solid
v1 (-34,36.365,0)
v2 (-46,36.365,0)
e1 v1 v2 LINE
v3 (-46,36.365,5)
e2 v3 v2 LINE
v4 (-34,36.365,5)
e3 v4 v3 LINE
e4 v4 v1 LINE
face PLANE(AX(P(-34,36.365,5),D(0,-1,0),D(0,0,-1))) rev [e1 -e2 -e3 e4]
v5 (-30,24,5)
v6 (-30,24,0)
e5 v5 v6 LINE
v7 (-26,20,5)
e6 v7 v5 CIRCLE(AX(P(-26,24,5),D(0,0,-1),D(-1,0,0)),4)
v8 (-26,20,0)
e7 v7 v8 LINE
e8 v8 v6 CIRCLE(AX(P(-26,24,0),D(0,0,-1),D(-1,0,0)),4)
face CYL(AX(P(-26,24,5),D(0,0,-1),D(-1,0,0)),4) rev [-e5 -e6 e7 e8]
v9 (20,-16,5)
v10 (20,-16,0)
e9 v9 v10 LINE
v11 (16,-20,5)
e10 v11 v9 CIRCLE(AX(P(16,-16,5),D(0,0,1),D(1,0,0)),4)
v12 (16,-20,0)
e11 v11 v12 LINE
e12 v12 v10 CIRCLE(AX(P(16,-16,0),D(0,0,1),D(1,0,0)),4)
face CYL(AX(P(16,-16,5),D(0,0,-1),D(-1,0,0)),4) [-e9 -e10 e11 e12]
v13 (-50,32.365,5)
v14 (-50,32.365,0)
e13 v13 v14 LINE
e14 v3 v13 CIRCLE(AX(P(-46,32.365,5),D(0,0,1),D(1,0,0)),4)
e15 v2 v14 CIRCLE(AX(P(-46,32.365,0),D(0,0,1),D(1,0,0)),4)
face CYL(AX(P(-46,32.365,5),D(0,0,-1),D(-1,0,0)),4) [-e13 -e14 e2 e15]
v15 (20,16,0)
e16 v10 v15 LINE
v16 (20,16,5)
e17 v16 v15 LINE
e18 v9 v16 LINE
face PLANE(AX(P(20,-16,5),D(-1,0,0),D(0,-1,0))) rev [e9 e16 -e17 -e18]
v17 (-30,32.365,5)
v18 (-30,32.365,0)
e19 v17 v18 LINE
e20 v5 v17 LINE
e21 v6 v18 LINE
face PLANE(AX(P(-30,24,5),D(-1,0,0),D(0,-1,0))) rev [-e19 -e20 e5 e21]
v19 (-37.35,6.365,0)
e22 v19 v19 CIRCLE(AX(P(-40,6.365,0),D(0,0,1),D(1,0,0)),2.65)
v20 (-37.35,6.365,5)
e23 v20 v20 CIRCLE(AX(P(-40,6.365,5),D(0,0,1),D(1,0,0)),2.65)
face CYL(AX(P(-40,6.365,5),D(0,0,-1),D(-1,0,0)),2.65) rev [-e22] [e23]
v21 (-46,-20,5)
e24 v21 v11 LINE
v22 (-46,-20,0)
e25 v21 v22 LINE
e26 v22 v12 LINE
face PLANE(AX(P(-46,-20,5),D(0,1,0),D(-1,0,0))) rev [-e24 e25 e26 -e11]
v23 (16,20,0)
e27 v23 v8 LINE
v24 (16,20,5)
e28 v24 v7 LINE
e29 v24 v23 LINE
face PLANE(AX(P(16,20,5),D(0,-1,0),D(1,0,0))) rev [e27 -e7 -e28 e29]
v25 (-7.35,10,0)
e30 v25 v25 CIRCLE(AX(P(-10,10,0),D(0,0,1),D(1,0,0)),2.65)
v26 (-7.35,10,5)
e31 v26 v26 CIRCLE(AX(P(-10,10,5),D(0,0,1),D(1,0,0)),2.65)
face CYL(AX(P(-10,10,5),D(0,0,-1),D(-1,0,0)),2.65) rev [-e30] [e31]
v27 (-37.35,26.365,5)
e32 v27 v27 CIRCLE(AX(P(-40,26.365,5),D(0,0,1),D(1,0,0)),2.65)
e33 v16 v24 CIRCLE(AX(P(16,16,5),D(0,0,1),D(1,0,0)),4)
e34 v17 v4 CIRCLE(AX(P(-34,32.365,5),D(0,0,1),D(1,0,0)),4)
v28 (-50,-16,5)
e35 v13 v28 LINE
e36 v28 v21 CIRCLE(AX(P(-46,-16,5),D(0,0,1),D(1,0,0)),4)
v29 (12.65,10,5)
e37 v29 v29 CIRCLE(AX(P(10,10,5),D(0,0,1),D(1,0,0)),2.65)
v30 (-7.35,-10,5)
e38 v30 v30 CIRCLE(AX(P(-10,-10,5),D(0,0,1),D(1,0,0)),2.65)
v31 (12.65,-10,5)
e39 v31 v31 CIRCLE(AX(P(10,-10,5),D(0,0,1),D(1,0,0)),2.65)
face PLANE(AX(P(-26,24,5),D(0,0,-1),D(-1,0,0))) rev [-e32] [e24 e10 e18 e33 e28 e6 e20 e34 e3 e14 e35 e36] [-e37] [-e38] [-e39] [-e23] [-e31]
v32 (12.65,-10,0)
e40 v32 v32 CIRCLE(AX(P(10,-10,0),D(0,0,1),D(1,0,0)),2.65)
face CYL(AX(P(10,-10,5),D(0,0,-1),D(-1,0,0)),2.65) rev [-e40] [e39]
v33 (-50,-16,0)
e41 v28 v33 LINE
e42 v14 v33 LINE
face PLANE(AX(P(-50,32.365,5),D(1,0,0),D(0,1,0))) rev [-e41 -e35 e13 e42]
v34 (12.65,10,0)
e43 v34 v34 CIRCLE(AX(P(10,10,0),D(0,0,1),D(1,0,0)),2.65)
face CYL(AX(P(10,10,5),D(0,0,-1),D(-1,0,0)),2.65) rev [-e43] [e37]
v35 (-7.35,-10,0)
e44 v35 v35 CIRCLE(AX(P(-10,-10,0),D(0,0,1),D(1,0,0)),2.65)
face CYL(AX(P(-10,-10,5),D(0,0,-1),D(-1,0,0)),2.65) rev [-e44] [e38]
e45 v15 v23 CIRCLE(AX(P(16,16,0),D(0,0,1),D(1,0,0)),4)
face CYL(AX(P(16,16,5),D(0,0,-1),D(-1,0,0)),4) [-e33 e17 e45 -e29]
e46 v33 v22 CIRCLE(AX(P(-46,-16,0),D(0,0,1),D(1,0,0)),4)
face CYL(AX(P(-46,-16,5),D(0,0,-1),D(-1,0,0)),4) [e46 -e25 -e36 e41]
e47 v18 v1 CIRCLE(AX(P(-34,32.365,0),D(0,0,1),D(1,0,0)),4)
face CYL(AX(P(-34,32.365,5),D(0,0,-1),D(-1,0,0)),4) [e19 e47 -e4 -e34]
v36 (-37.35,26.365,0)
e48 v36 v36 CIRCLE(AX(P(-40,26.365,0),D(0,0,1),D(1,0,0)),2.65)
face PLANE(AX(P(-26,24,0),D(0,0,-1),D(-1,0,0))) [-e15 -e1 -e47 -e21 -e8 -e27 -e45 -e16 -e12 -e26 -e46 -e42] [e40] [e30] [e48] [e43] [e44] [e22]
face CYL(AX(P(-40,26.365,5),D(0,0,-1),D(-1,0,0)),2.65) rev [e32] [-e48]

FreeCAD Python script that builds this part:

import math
import FreeCAD as App
import Part
import Sketcher
from FreeCAD import Vector

doc = App.newDocument("Part")
params = doc.addObject("Spreadsheet::Sheet", "Params")
for row, (alias, value) in enumerate([
    ("sketch1_radius", "4 mm"),
    ("sketch1_diameter", "5.3 mm"),
    ("sketch1_width", "62 mm"),
    ("sketch1_width2", "42 mm"),
    ("sketch1_height", "32 mm"),
    ("pad1_length", "5 mm"),
], start=1):
    params.set(f"A{row}", alias)
    params.set(f"B{row}", "=" + value)
    params.setAlias(f"B{row}", alias)

body = doc.addObject("PartDesign::Body", "Body")

# Sketch on XY plane
sketch1 = body.newObject("Sketcher::SketchObject", "Sketch")
sketch1.AttachmentSupport = (doc.getObject("XY_Plane"), [""])
sketch1.MapMode = "FlatFace"
sketch1.addGeometry(Part.LineSegment(Vector(-46, -20, 0), Vector(16, -20, 0)), False)
sketch1.addGeometry(Part.ArcOfCircle(Part.Circle(Vector(16, -16, 0), Vector(0, 0, 1), 4), math.radians(-90), math.radians(0)), False)
sketch1.addGeometry(Part.LineSegment(Vector(20, -16, 0), Vector(20, 16, 0)), False)
sketch1.addGeometry(Part.ArcOfCircle(Part.Circle(Vector(16, 16, 0), Vector(0, 0, 1), 4), math.radians(0), math.radians(90)), False)
sketch1.addGeometry(Part.LineSegment(Vector(16, 20, 0), Vector(-26, 20, 0)), False)
sketch1.addGeometry(Part.ArcOfCircle(Part.Circle(Vector(-26, 24, 0), Vector(0, 0, 1), 4), math.radians(180), math.radians(270)), False)
sketch1.addGeometry(Part.LineSegment(Vector(-30, 24, 0), Vector(-30, 32.4, 0)), False)
sketch1.addGeometry(Part.ArcOfCircle(Part.Circle(Vector(-34, 32.4, 0), Vector(0, 0, 1), 4), math.radians(0), math.radians(90)), False)
sketch1.addGeometry(Part.LineSegment(Vector(-34, 36.4, 0), Vector(-46, 36.4, 0)), False)
sketch1.addGeometry(Part.ArcOfCircle(Part.Circle(Vector(-46, 32.4, 0), Vector(0, 0, 1), 4), math.radians(90), math.radians(180)), False)
sketch1.addGeometry(Part.LineSegment(Vector(-50, 32.4, 0), Vector(-50, -16, 0)), False)
sketch1.addGeometry(Part.ArcOfCircle(Part.Circle(Vector(-46, -16, 0), Vector(0, 0, 1), 4), math.radians(180), math.radians(270)), False)
sketch1.addGeometry(Part.Circle(Vector(-40, 6.4, 0), Vector(0, 0, 1), 2.6), False)
sketch1.addGeometry(Part.Circle(Vector(-10, -10, 0), Vector(0, 0, 1), 2.6), False)
sketch1.addGeometry(Part.Circle(Vector(10, -10, 0), Vector(0, 0, 1), 2.6), False)
sketch1.addGeometry(Part.Circle(Vector(-40, 26.4, 0), Vector(0, 0, 1), 2.6), False)
sketch1.addGeometry(Part.Circle(Vector(-10, 10, 0), Vector(0, 0, 1), 2.6), False)
sketch1.addGeometry(Part.Circle(Vector(10, 10, 0), Vector(0, 0, 1), 2.6), False)
sketch1.addConstraint(Sketcher.Constraint("Tangent", 0, 2, 1, 1))
sketch1.addConstraint(Sketcher.Constraint("Tangent", 1, 2, 2, 1))
sketch1.addConstraint(Sketcher.Constraint("Tangent", 2, 2, 3, 1))
sketch1.addConstraint(Sketcher.Constraint("Tangent", 3, 2, 4, 1))
sketch1.addConstraint(Sketcher.Constraint("Tangent", 4, 2, 5, 2))
sketch1.addConstraint(Sketcher.Constraint("Tangent", 5, 1, 6, 1))
sketch1.addConstraint(Sketcher.Constraint("Tangent", 6, 2, 7, 1))
sketch1.addConstraint(Sketcher.Constraint("Tangent", 7, 2, 8, 1))
sketch1.addConstraint(Sketcher.Constraint("Tangent", 8, 2, 9, 1))
sketch1.addConstraint(Sketcher.Constraint("Tangent", 9, 2, 10, 1))
sketch1.addConstraint(Sketcher.Constraint("Tangent", 10, 2, 11, 1))
sketch1.addConstraint(Sketcher.Constraint("Tangent", 11, 2, 0, 1))
sketch1.addConstraint(Sketcher.Constraint("Horizontal", 0))
sketch1.addConstraint(Sketcher.Constraint("Vertical", 2))
sketch1.addConstraint(Sketcher.Constraint("Horizontal", 4))
sketch1.addConstraint(Sketcher.Constraint("Vertical", 6))
sketch1.addConstraint(Sketcher.Constraint("Horizontal", 8))
sketch1.addConstraint(Sketcher.Constraint("Vertical", 10))
sketch1.addConstraint(Sketcher.Constraint("Equal", 1, 3))
sketch1.addConstraint(Sketcher.Constraint("Equal", 3, 5))
sketch1.addConstraint(Sketcher.Constraint("Equal", 5, 7))
sketch1.addConstraint(Sketcher.Constraint("Equal", 7, 9))
sketch1.addConstraint(Sketcher.Constraint("Equal", 9, 11))
sketch1.addConstraint(Sketcher.Constraint("Equal", 12, 13))
sketch1.addConstraint(Sketcher.Constraint("Equal", 13, 14))
sketch1.addConstraint(Sketcher.Constraint("Equal", 14, 15))
sketch1.addConstraint(Sketcher.Constraint("Equal", 15, 16))
sketch1.addConstraint(Sketcher.Constraint("Equal", 16, 17))
sketch1.addConstraint(Sketcher.Constraint("Symmetric", 14, 3, 16, 3, -1, 1))
sketch1.addConstraint(Sketcher.Constraint("Symmetric", 13, 3, 17, 3, -1, 1))
sketch1.addConstraint(Sketcher.Constraint("Symmetric", 13, 3, 14, 3, -2))
sketch1.addConstraint(Sketcher.Constraint("Vertical", 12, 3, 15, 3))
sketch1.addConstraint(Sketcher.Constraint("Radius", 1, 4.0))
sketch1.addConstraint(Sketcher.Constraint("Diameter", 12, 5.3))
sketch1.addConstraint(Sketcher.Constraint("DistanceX", 0, 1, 0, 2, 62.0))
sketch1.addConstraint(Sketcher.Constraint("DistanceX", 4, 2, 4, 1, 42.0))
sketch1.addConstraint(Sketcher.Constraint("DistanceY", 2, 1, 2, 2, 32.0))
sketch1.addConstraint(Sketcher.Constraint("DistanceX", -1, 1, 1, 3, 16.0))
sketch1.addConstraint(Sketcher.Constraint("DistanceY", 1, 3, -1, 1, 16.0))
sketch1.addConstraint(Sketcher.Constraint("DistanceX", 12, 3, -1, 1, 40.0))
sketch1.addConstraint(Sketcher.Constraint("DistanceX", 13, 3, -1, 1, 10.0))
sketch1.addConstraint(Sketcher.Constraint("DistanceY", 13, 3, -1, 1, 10.0))
sketch1.addConstraint(Sketcher.Constraint("DistanceY", 12, 3, 7, 3, 26.0))
sketch1.addConstraint(Sketcher.Constraint("DistanceY", 15, 3, 7, 3, 6.0))
sketch1.addConstraint(Sketcher.Constraint("DistanceY", 6, 1, 6, 2, 8.365))
sketch1.setExpression("Constraints[32]", "Params.sketch1_radius")
sketch1.setExpression("Constraints[33]", "Params.sketch1_diameter")
sketch1.setExpression("Constraints[34]", "Params.sketch1_width")
sketch1.setExpression("Constraints[35]", "Params.sketch1_width2")
sketch1.setExpression("Constraints[36]", "Params.sketch1_height")
pad1 = body.newObject("PartDesign::Pad", "Pad")
pad1.Profile = sketch1
pad1.setExpression("Length", "Params.pad1_length")

doc.recompute()
